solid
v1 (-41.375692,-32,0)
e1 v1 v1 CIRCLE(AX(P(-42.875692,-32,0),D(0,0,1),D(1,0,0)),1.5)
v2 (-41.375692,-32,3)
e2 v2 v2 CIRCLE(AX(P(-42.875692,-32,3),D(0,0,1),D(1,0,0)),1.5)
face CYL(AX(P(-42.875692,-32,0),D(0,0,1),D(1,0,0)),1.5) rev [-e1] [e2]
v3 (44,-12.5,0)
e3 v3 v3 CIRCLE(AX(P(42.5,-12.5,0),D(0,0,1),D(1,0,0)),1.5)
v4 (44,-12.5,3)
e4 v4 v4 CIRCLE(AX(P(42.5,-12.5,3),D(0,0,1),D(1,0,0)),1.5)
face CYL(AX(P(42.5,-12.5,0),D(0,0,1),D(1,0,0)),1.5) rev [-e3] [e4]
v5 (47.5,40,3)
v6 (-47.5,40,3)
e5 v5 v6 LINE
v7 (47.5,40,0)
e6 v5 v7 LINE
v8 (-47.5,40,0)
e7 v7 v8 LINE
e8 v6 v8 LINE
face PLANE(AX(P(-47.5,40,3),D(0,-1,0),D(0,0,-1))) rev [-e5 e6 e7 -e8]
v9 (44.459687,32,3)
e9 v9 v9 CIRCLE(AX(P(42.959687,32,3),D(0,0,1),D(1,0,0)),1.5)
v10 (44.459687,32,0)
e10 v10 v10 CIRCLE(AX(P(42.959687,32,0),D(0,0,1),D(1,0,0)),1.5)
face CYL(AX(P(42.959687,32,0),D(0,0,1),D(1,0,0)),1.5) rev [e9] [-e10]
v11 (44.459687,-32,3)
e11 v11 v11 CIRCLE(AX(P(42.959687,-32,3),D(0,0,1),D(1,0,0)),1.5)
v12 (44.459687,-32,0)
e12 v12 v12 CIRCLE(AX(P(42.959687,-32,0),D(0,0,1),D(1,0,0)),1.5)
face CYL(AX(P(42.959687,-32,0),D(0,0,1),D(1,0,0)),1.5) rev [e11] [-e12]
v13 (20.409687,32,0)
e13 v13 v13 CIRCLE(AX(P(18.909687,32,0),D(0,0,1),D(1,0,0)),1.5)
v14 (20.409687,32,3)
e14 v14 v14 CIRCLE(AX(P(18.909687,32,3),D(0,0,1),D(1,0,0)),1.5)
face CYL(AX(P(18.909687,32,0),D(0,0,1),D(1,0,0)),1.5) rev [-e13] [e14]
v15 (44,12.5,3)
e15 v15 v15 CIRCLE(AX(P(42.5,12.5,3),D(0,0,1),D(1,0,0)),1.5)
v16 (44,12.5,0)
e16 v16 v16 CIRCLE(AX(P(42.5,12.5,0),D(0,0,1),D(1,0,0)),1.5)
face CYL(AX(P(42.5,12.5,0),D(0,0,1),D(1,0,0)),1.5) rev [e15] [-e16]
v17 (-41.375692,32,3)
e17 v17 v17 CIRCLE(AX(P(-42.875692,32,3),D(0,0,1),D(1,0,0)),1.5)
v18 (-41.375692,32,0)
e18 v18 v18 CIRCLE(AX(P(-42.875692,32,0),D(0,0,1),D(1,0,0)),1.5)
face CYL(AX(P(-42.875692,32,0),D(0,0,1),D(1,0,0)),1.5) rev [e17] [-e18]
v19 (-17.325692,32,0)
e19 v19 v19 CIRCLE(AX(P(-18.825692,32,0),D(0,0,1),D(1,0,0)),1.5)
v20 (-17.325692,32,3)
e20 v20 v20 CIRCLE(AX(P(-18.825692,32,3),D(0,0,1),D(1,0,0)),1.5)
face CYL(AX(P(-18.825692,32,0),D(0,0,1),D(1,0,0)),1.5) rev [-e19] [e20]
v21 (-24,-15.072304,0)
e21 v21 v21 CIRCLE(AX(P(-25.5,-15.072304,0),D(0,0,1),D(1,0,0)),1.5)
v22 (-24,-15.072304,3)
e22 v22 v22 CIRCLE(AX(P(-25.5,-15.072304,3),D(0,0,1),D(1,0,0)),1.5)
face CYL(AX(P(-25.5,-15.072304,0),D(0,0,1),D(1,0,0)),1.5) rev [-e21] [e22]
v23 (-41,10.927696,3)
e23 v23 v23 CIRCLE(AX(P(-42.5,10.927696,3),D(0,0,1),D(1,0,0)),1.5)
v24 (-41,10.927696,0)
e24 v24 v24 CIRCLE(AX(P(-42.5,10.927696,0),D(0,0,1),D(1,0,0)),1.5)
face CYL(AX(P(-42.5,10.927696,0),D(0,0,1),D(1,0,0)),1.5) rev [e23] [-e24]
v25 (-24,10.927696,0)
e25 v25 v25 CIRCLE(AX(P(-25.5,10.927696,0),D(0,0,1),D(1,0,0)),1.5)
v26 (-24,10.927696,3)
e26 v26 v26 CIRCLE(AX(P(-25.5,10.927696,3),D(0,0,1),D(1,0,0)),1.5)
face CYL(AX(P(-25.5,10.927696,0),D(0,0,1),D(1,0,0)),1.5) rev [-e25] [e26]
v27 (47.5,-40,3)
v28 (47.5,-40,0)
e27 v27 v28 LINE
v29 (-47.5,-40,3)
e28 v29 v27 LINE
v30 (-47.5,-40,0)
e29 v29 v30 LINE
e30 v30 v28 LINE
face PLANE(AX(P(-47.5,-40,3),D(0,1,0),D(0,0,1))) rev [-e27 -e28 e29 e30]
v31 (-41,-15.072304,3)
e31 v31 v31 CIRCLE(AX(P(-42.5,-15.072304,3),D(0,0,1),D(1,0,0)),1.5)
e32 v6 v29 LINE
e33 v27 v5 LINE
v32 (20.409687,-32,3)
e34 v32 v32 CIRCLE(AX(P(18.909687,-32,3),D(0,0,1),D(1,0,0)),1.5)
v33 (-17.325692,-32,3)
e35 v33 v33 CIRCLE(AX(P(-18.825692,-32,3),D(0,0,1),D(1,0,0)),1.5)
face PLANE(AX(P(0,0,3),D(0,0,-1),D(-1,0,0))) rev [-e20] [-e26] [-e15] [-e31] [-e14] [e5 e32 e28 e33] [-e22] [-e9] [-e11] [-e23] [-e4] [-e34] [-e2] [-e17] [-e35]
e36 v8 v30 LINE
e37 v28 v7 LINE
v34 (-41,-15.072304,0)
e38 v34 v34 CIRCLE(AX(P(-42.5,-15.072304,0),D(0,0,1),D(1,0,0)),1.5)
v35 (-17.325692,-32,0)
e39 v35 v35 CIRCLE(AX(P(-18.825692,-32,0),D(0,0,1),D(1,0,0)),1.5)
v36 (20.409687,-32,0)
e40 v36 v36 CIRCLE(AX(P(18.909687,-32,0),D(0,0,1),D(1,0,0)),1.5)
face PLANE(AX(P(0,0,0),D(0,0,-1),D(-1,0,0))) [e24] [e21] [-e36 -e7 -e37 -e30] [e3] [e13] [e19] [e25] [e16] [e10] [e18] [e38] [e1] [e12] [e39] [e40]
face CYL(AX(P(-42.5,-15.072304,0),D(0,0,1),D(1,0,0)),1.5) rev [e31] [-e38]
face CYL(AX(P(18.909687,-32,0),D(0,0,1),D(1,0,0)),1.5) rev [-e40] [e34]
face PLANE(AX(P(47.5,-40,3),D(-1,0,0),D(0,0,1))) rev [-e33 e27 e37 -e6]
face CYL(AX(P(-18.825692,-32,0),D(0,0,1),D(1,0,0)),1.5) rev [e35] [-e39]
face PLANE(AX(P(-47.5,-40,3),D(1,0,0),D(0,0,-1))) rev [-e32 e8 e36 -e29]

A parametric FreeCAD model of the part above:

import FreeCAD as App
import Part
import Sketcher

V = App.Vector

doc = App.newDocument("Part")
body = doc.addObject("PartDesign::Body", "Body")

sketch1 = body.newObject("Sketcher::SketchObject", "Sketch")
sketch1.AttachmentSupport = (doc.getObject("XY_Plane"), [""])
sketch1.MapMode = "FlatFace"
sketch1.addGeometry([
    Part.LineSegment(V(-48, 40, 0), V(-48, -40, 0)),
    Part.LineSegment(V(-48, -40, 0), V(48, -40, 0)),
    Part.LineSegment(V(48, -40, 0), V(48, 40, 0)),
    Part.LineSegment(V(48, 40, 0), V(-48, 40, 0)),
], False)
sketch1.addConstraint([
    Sketcher.Constraint("Coincident", 0, 2, 1, 1),
    Sketcher.Constraint("Coincident", 1, 2, 2, 1),
    Sketcher.Constraint("Coincident", 2, 2, 3, 1),
    Sketcher.Constraint("Coincident", 3, 2, 0, 1),
    Sketcher.Constraint("Vertical", 0),
    Sketcher.Constraint("Horizontal", 1),
    Sketcher.Constraint("Vertical", 2),
    Sketcher.Constraint("Horizontal", 3),
    Sketcher.Constraint("Symmetric", 0, 2, 2, 2, -1, 1),
    Sketcher.Constraint("DistanceX", 1, 1, 1, 2, 95.0),
    Sketcher.Constraint("DistanceY", 0, 2, 0, 1, 80.0),
])
pad1 = body.newObject("PartDesign::Pad", "Pad")
pad1.Profile = sketch1
pad1.Length = 3

sketch2 = body.newObject("Sketcher::SketchObject", "Sketch001")
sketch2.AttachmentSupport = (doc.getObject("XY_Plane"), [""])
sketch2.MapMode = "FlatFace"
sketch2.AttachmentOffset = App.Placement(V(0, 0, 3), App.Rotation())
sketch2.addGeometry([
    Part.Circle(V(-42.9, -32, 0), V(0, 0, 1), 1.5),
    Part.Circle(V(-18.8, -32, 0), V(0, 0, 1), 1.5),
    Part.Circle(V(-42.9, 32, 0), V(0, 0, 1), 1.5),
    Part.Circle(V(-18.8, 32, 0), V(0, 0, 1), 1.5),
    Part.Circle(V(-42.5, 10.9, 0), V(0, 0, 1), 1.5),
    Part.Circle(V(-25.5, 10.9, 0), V(0, 0, 1), 1.5),
    Part.Circle(V(-42.5, -15.1, 0), V(0, 0, 1), 1.5),
    Part.Circle(V(-25.5, -15.1, 0), V(0, 0, 1), 1.5),
    Part.Circle(V(42.5, -12.5, 0), V(0, 0, 1), 1.5),
    Part.Circle(V(42.5, 12.5, 0), V(0, 0, 1), 1.5),
    Part.Circle(V(18.9, 32, 0), V(0, 0, 1), 1.5),
    Part.Circle(V(43, 32, 0), V(0, 0, 1), 1.5),
    Part.Circle(V(18.9, -32, 0), V(0, 0, 1), 1.5),
    Part.Circle(V(43, -32, 0), V(0, 0, 1), 1.5),
], False)
sketch2.addConstraint([
    Sketcher.Constraint("Equal", 0, 1),
    Sketcher.Constraint("Equal", 1, 2),
    Sketcher.Constraint("Equal", 2, 3),
    Sketcher.Constraint("Equal", 3, 4),
    Sketcher.Constraint("Equal", 4, 5),
    Sketcher.Constraint("Equal", 5, 6),
    Sketcher.Constraint("Equal", 6, 7),
    Sketcher.Constraint("Equal", 7, 8),
    Sketcher.Constraint("Equal", 8, 9),
    Sketcher.Constraint("Equal", 9, 10),
    Sketcher.Constraint("Equal", 10, 11),
    Sketcher.Constraint("Equal", 11, 12),
    Sketcher.Constraint("Equal", 12, 13),
    Sketcher.Constraint("Symmetric", 0, 3, 2, 3, -1),
    Sketcher.Constraint("Symmetric", 1, 3, 3, 3, -1),
    Sketcher.Constraint("Symmetric", 8, 3, 9, 3, -1),
    Sketcher.Constraint("Symmetric", 10, 3, 12, 3, -1),
    Sketcher.Constraint("Symmetric", 11, 3, 13, 3, -1),
    Sketcher.Constraint("Horizontal", 0, 3, 1, 3),
    Sketcher.Constraint("Horizontal", 4, 3, 5, 3),
    Sketcher.Constraint("Horizontal", 6, 3, 7, 3),
    Sketcher.Constraint("Horizontal", 3, 3, 10, 3),
    Sketcher.Constraint("Horizontal", 10, 3, 11, 3),
    Sketcher.Constraint("Vertical", 4, 3, 6, 3),
    Sketcher.Constraint("Vertical", 5, 3, 7, 3),
    Sketcher.Constraint("Diameter", 0, 3.0),
    Sketcher.Constraint("DistanceY", 0, 3, -1, 1, 32.0),
    Sketcher.Constraint("DistanceX", 4, 3, 5, 3, 17.0),
    Sketcher.Constraint("DistanceY", 6, 3, 4, 3, 26.0),
    Sketcher.Constraint("DistanceX", 7, 3, 8, 3, 68.0),
    Sketcher.Constraint("DistanceY", 8, 3, 9, 3, 25.0),
    Sketcher.Constraint("DistanceX", 4, 3, -1, 1, 42.5),
    Sketcher.Constraint("DistanceX", 0, 3, 1, 3, 24.05),
    Sketcher.Constraint("DistanceX", 10, 3, 11, 3, 24.05),
    Sketcher.Constraint("DistanceX", 3, 3, 10, 3, 37.73538),
    Sketcher.Constraint("DistanceX", 0, 3, -1, 1, 42.875692),
    Sketcher.Constraint("DistanceY", -1, 1, 4, 3, 10.927696),
])
pocket1 = body.newObject("PartDesign::Pocket", "Pocket")
pocket1.Profile = sketch2
pocket1.Length = 3

doc.recompute()
